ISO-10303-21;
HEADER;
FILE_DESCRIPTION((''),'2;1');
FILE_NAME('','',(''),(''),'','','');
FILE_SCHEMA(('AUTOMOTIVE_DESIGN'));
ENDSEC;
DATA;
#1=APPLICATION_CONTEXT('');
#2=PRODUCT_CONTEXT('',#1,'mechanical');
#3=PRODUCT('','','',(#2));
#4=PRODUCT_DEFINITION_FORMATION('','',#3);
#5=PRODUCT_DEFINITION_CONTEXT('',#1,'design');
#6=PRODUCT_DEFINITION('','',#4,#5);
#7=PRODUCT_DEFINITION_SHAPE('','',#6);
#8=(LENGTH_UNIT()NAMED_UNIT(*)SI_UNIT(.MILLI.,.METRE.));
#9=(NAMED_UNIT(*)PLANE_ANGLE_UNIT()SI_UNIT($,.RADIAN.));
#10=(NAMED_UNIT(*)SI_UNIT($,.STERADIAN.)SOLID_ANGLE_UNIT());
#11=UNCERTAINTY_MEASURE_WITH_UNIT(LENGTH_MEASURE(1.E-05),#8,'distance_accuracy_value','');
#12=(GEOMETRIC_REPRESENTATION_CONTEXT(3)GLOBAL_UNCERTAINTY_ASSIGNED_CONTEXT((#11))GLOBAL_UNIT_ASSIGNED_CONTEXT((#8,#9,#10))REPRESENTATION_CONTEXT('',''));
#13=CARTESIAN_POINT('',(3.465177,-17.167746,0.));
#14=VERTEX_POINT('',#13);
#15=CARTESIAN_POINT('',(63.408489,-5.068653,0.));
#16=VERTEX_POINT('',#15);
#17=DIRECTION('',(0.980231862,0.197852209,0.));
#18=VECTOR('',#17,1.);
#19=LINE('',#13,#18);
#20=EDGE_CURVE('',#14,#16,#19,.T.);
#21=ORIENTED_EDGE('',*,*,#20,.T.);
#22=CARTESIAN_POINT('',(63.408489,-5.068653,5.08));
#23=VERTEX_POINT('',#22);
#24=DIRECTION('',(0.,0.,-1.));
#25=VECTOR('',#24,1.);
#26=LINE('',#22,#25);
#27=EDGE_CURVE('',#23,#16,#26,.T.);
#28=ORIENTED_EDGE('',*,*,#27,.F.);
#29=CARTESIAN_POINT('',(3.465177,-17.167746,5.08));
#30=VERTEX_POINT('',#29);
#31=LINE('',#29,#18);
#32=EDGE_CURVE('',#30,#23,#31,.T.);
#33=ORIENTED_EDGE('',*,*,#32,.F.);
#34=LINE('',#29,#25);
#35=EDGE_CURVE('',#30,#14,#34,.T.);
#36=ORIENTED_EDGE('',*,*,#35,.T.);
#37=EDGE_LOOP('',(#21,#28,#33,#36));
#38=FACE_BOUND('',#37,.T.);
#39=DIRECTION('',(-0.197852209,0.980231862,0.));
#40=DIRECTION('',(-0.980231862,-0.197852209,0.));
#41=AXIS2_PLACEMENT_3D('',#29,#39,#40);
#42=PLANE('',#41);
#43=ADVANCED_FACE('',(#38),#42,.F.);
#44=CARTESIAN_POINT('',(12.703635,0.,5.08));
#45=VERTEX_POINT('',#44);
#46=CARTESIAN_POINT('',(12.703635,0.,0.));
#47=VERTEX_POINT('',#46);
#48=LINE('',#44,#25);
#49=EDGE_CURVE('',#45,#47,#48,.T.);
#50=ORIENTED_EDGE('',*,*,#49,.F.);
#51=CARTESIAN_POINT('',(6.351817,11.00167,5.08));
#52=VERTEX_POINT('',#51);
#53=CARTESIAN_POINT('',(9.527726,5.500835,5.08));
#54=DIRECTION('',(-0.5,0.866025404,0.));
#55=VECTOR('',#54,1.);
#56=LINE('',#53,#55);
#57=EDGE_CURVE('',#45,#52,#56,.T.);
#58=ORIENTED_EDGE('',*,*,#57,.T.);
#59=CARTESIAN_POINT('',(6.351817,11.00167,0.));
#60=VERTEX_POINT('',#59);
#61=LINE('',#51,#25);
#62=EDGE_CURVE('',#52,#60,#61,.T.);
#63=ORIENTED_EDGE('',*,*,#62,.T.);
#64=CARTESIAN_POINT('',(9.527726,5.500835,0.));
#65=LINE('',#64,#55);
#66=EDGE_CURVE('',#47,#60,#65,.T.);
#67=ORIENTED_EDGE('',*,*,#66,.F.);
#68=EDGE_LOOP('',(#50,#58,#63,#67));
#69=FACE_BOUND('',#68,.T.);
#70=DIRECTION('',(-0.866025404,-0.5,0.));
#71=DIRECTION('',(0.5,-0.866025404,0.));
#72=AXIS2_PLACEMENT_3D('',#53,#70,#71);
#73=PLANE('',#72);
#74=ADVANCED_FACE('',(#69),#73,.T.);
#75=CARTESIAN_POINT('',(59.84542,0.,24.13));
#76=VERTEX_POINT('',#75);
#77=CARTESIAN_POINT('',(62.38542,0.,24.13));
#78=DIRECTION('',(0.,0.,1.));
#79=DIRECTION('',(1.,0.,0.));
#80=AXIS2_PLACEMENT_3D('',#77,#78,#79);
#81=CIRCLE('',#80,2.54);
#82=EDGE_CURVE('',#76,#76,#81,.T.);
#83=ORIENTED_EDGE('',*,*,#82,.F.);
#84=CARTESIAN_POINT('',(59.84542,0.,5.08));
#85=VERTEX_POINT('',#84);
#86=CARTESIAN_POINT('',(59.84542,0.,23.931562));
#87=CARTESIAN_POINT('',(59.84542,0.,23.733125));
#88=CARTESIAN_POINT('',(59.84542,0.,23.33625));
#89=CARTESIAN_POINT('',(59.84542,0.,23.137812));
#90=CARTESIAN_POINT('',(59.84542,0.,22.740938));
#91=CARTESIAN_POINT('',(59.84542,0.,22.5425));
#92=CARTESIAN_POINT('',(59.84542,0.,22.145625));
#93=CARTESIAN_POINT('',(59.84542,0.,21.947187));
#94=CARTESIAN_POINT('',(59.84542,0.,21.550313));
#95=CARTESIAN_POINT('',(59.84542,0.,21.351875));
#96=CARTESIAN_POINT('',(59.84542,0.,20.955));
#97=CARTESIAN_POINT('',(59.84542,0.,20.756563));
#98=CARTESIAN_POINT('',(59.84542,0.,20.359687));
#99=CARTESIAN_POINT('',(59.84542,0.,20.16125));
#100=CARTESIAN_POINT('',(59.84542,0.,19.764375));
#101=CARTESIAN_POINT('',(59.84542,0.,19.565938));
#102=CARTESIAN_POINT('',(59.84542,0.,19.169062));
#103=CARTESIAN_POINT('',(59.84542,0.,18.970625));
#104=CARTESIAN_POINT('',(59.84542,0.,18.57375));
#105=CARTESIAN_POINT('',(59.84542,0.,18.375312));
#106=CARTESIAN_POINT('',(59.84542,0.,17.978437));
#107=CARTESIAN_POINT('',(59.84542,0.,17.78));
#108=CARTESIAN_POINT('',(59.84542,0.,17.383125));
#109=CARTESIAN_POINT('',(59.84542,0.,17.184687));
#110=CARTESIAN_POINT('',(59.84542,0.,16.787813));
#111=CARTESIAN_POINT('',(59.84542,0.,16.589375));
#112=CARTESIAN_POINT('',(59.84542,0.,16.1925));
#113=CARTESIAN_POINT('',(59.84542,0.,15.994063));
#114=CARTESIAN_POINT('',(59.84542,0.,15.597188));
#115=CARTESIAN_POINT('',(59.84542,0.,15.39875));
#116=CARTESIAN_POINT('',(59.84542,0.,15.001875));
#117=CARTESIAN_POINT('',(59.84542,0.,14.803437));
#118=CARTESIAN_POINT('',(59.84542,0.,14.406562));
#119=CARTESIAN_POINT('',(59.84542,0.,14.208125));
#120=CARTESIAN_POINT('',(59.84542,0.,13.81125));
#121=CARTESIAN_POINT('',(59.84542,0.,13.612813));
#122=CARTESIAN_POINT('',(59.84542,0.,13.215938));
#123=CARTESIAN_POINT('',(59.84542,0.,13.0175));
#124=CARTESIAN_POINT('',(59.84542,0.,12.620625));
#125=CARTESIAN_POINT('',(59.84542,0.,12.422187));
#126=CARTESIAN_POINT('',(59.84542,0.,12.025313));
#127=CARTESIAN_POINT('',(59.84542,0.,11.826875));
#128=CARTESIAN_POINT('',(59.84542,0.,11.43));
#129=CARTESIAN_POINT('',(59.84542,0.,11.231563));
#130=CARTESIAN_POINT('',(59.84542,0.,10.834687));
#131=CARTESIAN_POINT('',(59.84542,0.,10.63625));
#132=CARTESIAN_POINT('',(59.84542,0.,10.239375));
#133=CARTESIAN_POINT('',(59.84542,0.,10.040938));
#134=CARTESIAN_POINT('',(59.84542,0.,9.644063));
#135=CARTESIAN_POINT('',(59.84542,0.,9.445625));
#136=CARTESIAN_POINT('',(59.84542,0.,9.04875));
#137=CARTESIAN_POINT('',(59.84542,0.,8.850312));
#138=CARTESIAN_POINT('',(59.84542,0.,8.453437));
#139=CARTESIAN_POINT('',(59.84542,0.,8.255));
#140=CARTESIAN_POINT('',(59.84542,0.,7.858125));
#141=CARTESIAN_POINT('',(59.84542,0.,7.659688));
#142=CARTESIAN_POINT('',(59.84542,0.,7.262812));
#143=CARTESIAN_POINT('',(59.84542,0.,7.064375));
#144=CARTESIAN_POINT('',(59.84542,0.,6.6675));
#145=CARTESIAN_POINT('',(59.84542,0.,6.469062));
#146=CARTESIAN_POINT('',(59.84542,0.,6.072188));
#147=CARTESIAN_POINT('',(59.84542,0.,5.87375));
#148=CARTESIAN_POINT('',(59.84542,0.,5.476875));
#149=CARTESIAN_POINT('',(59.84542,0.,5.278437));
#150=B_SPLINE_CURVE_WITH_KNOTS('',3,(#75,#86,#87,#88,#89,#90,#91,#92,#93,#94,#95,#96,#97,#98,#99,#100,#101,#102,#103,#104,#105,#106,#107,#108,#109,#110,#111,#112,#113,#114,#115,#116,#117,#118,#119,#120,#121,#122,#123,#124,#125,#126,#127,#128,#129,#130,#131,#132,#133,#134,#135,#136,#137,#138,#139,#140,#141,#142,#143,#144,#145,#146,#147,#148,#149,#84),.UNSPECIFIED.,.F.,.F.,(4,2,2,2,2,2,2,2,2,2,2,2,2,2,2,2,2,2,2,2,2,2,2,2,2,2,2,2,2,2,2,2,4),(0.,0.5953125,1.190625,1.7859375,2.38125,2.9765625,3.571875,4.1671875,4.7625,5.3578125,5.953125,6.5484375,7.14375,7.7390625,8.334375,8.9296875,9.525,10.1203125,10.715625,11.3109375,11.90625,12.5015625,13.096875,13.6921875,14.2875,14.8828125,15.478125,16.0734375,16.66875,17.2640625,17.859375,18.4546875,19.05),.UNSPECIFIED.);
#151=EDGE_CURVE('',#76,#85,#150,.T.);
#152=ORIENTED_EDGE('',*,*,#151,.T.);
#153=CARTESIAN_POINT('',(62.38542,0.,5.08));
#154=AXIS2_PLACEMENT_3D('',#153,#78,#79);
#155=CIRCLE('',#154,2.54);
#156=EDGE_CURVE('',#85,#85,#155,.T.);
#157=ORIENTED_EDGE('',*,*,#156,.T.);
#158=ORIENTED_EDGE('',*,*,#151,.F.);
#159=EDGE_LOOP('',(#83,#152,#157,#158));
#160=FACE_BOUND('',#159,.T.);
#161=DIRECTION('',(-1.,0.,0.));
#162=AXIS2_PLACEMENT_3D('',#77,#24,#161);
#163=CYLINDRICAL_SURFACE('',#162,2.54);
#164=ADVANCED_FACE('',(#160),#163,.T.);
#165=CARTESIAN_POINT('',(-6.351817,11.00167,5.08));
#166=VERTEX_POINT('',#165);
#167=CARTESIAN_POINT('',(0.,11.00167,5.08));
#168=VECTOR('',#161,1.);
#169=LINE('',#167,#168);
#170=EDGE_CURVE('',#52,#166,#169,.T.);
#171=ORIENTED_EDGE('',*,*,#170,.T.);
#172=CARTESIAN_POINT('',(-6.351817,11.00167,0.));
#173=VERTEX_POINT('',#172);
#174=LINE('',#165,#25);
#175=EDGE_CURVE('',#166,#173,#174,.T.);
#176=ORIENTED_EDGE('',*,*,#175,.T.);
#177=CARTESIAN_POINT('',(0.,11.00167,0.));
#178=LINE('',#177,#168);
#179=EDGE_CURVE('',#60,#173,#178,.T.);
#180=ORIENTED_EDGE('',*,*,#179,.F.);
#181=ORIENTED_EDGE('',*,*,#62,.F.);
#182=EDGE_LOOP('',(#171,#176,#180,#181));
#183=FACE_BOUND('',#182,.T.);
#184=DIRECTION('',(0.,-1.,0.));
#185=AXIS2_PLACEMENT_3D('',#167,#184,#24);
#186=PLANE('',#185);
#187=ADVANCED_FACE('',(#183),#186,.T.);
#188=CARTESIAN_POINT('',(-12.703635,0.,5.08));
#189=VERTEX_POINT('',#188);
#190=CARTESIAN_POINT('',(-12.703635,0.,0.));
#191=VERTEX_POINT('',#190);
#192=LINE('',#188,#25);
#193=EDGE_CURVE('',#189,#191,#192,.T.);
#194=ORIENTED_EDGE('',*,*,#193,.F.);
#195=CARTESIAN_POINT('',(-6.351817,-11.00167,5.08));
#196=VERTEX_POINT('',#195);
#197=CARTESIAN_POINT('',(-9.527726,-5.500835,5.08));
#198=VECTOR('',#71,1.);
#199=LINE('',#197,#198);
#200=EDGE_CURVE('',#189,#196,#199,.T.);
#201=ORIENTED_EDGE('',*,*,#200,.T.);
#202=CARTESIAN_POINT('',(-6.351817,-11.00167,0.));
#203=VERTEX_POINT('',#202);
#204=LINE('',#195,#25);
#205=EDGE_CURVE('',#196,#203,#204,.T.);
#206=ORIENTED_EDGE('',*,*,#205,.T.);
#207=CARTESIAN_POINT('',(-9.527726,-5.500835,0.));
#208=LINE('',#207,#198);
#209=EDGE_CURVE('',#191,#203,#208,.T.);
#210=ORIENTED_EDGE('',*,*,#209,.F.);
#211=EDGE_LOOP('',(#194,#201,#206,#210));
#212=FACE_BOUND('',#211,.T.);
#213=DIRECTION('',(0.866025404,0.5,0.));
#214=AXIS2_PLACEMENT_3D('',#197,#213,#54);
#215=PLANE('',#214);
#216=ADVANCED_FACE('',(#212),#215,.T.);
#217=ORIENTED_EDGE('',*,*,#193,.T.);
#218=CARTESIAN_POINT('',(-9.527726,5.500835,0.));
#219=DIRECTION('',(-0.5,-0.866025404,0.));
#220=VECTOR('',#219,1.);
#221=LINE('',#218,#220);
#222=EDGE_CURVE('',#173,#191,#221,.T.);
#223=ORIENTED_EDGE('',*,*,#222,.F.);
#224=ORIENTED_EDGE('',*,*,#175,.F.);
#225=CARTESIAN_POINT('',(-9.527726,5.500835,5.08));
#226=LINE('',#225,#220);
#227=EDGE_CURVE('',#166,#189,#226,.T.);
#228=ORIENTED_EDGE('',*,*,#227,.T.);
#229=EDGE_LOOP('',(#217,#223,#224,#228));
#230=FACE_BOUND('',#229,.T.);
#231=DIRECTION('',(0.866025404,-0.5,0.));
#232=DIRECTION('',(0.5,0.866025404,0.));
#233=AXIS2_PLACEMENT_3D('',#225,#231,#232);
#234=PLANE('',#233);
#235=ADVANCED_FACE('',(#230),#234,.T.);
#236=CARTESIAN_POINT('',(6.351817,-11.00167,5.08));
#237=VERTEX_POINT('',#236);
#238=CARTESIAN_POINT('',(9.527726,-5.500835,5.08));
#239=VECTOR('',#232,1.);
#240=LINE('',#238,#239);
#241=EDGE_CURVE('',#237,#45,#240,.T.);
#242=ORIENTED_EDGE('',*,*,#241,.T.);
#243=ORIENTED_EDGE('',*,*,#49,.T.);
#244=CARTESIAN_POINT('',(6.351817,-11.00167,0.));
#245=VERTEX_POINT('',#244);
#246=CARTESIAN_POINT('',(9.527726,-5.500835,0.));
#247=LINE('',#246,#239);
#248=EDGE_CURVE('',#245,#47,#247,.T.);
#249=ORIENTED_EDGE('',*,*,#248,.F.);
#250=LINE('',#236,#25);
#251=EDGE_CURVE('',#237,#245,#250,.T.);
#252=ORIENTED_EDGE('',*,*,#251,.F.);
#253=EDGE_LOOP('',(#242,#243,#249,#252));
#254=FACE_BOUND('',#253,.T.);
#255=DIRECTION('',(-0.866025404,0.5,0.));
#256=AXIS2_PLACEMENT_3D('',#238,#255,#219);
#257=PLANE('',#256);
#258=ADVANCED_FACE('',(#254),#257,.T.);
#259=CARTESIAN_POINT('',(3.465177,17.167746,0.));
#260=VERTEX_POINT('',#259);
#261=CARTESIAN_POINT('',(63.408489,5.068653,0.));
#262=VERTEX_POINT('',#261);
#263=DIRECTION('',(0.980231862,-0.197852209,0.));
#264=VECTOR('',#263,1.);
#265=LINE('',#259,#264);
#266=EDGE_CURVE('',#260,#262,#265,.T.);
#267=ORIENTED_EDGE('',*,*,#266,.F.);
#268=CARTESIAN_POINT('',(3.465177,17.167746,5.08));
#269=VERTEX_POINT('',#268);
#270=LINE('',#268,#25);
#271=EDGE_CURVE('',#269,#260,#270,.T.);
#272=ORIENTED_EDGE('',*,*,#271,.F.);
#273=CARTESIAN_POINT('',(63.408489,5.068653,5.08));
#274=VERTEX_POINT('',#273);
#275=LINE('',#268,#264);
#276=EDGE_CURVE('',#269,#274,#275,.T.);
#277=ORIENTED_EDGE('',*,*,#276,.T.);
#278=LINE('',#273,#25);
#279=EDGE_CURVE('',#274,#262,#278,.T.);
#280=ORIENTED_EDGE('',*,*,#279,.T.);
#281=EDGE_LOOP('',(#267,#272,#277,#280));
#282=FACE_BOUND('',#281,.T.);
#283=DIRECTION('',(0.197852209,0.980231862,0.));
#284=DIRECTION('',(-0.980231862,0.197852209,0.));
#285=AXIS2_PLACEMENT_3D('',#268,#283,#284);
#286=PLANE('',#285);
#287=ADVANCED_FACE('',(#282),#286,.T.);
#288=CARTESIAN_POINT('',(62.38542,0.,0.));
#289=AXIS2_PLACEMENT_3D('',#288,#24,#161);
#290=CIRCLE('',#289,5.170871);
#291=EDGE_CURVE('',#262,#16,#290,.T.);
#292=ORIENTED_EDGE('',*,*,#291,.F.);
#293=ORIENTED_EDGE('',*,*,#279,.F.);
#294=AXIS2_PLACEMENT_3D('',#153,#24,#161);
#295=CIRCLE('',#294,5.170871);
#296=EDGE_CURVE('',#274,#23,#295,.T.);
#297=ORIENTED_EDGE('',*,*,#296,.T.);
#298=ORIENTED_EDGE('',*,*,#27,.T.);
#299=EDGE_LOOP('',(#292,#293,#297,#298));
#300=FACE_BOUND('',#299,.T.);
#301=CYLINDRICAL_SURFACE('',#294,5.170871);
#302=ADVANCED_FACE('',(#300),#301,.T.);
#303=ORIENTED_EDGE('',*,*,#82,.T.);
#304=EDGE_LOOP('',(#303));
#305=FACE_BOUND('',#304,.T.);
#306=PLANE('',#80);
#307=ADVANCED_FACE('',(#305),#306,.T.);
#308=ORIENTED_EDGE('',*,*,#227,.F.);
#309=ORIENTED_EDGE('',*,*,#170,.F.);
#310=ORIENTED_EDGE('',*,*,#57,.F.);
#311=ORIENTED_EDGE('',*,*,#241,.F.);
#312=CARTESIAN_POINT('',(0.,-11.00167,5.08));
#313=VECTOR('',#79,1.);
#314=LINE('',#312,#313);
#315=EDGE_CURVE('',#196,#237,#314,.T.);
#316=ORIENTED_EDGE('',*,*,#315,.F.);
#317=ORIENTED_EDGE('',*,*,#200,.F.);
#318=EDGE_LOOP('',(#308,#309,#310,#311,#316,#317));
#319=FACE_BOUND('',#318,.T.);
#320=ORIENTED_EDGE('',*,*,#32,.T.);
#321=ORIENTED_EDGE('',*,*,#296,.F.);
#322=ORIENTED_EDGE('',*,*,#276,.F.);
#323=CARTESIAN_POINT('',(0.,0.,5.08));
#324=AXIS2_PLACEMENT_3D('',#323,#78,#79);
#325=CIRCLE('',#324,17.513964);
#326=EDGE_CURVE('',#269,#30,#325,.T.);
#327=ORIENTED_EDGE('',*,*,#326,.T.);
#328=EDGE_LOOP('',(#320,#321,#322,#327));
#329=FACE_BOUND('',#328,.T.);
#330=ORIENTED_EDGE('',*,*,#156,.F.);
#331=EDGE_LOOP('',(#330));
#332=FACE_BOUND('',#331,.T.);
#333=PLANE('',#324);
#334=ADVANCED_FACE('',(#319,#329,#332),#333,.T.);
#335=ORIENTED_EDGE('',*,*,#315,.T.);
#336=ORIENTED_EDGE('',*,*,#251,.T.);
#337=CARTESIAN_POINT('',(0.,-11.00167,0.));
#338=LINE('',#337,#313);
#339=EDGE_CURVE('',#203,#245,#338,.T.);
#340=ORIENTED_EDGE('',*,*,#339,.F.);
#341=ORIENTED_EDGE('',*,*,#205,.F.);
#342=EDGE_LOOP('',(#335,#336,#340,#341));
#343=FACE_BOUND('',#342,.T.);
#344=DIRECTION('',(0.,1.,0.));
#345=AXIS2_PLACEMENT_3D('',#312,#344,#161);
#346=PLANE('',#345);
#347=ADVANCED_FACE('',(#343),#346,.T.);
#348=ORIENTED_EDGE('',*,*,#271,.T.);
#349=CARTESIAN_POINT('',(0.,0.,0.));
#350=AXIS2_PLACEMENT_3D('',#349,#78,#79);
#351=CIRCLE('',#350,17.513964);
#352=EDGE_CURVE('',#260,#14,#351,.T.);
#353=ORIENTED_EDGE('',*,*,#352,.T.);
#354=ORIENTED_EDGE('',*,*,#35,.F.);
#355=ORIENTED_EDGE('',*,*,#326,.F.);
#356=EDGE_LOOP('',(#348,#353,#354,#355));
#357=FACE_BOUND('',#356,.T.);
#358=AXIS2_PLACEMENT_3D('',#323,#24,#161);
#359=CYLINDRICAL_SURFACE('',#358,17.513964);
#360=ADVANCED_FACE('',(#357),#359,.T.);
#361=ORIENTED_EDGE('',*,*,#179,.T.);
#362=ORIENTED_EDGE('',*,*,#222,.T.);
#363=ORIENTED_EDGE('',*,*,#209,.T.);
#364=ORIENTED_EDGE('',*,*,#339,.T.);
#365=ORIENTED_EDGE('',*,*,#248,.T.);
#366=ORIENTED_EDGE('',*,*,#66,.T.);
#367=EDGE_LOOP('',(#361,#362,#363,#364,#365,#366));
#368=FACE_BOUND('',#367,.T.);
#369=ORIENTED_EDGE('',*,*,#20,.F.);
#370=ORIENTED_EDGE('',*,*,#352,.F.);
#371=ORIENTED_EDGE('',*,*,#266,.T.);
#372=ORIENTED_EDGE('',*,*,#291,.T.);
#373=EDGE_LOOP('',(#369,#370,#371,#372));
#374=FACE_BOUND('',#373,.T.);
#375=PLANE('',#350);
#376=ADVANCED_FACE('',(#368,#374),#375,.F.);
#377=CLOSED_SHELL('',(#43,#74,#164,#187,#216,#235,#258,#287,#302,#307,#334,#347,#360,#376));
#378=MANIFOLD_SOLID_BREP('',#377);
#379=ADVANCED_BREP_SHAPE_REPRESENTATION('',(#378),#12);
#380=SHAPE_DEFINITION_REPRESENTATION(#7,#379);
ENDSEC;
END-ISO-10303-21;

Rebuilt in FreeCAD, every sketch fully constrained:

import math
import FreeCAD as App
import Part
import Sketcher
Q = App.Units.Quantity


def add_polygon(sketch, points):
    """Adds a closed chain of lines whose ends are joined by coincident constraints."""
    first, n = sketch.GeometryCount, len(points)
    for a, b in zip(points, points[1:] + points[:1]):
        sketch.addGeometry(Part.LineSegment(App.Vector(*a, 0), App.Vector(*b, 0)), False)
    for i in range(n):
        sketch.addConstraint(Sketcher.Constraint("Coincident", first + i, 2, first + (i + 1) % n, 1))

doc = App.newDocument("Part")
body = doc.addObject("PartDesign::Body", "Body")

sketch1 = doc.addObject("Sketcher::SketchObject", "Sketch")
body.addObject(sketch1)
sketch1.AttachmentSupport = (doc.XY_Plane, [""])
sketch1.MapMode = "FlatFace"
sketch1.addGeometry(Part.LineSegment(App.Vector(63.408489, 5.068653, 0), App.Vector(3.465177, 17.167746, 0)), False)
sketch1.addGeometry(Part.ArcOfCircle(Part.Circle(App.Vector(0, 0, 0), App.Vector(0, 0, 1), 17.513964), math.radians(78.58861), math.radians(281.41139)), False)
sketch1.addGeometry(Part.LineSegment(App.Vector(3.465177, -17.167746, 0), App.Vector(63.408489, -5.068653, 0)), False)
sketch1.addGeometry(Part.ArcOfCircle(Part.Circle(App.Vector(62.38542, 0, 0), App.Vector(0, 0, 1), 5.170871), math.radians(-78.58861), math.radians(78.58861)), False)
add_polygon(sketch1, [(12.703635, 0), (6.351817, -11.00167), (-6.351817, -11.00167), (-12.703635, 0), (-6.351817, 11.00167), (6.351817, 11.00167)])
sketch1.addConstraint(Sketcher.Constraint("Coincident", 0, 2, 1, 1))
sketch1.addConstraint(Sketcher.Constraint("Coincident", 1, 2, 2, 1))
sketch1.addConstraint(Sketcher.Constraint("Coincident", 2, 2, 3, 1))
sketch1.addConstraint(Sketcher.Constraint("Coincident", 3, 2, 0, 1))
sketch1.addConstraint(Sketcher.Constraint("Horizontal", 5))
sketch1.addConstraint(Sketcher.Constraint("Horizontal", 8))
sketch1.addConstraint(Sketcher.Constraint("Coincident", 1, 3, -1, 1))
sketch1.addConstraint(Sketcher.Constraint("PointOnObject", 3, 3, -1))
sketch1.addConstraint(Sketcher.Constraint("PointOnObject", 6, 2, -1))
sketch1.addConstraint(Sketcher.Constraint("PointOnObject", 9, 2, -1))
sketch1.addConstraint(Sketcher.Constraint("Radius", 3, Q("5.170871 mm")))
sketch1.addConstraint(Sketcher.Constraint("Radius", 1, Q("17.513964 mm")))
sketch1.addConstraint(Sketcher.Constraint("DistanceY", 2, 2, 0, 2, Q("22.236399 mm")))
sketch1.addConstraint(Sketcher.Constraint("DistanceY", 1, 2, 3, 2, Q("22.236399 mm")))
sketch1.addConstraint(Sketcher.Constraint("DistanceX", 5, 2, 5, 1, Q("12.703635 mm")))
sketch1.addConstraint(Sketcher.Constraint("DistanceX", 8, 1, 8, 2, Q("12.703635 mm")))
sketch1.addConstraint(Sketcher.Constraint("DistanceX", -1, 1, 3, 3, Q("62.38542 mm")))
sketch1.addConstraint(Sketcher.Constraint("DistanceX", -1, 1, 2, 2, Q("63.408489 mm")))
sketch1.addConstraint(Sketcher.Constraint("DistanceX", -1, 1, 3, 2, Q("63.408489 mm")))
sketch1.addConstraint(Sketcher.Constraint("DistanceY", 4, 2, -1, 1, Q("11.00167 mm")))
sketch1.addConstraint(Sketcher.Constraint("DistanceY", -1, 1, 7, 2, Q("11.00167 mm")))
sketch1.addConstraint(Sketcher.Constraint("DistanceX", 1, 2, 4, 2, Q("2.886641 mm")))
sketch1.addConstraint(Sketcher.Constraint("DistanceX", 6, 2, 4, 2, Q("19.055452 mm")))
sketch1.addConstraint(Sketcher.Constraint("DistanceX", 0, 2, 8, 2, Q("2.886641 mm")))
sketch1.addConstraint(Sketcher.Constraint("DistanceX", 1, 2, 9, 2, Q("9.238458 mm")))
pad1 = doc.addObject("PartDesign::Pad", "Pad")
body.addObject(pad1)
pad1.Profile = sketch1
pad1.Length = Q("0.2 in")

sketch2 = doc.addObject("Sketcher::SketchObject", "Sketch001")
body.addObject(sketch2)
sketch2.AttachmentSupport = (doc.XY_Plane, [""])
sketch2.MapMode = "FlatFace"
sketch2.AttachmentOffset = App.Placement(App.Vector(0, 0, 0.2 * 25.4), App.Rotation())
sketch2.addGeometry(Part.Circle(App.Vector(62.4, 0, 0), App.Vector(0, 0, 1), 2.5), False)
sketch2.addConstraint(Sketcher.Constraint("PointOnObject", 0, 3, -1))
sketch2.addConstraint(Sketcher.Constraint("Diameter", 0, Q("0.2 in")))
sketch2.addConstraint(Sketcher.Constraint("DistanceX", -1, 1, 0, 3, Q("62.38542 mm")))
pad2 = doc.addObject("PartDesign::Pad", "Pad001")
body.addObject(pad2)
pad2.Profile = sketch2
pad2.Length = Q("0.75 in")

doc.recompute()
